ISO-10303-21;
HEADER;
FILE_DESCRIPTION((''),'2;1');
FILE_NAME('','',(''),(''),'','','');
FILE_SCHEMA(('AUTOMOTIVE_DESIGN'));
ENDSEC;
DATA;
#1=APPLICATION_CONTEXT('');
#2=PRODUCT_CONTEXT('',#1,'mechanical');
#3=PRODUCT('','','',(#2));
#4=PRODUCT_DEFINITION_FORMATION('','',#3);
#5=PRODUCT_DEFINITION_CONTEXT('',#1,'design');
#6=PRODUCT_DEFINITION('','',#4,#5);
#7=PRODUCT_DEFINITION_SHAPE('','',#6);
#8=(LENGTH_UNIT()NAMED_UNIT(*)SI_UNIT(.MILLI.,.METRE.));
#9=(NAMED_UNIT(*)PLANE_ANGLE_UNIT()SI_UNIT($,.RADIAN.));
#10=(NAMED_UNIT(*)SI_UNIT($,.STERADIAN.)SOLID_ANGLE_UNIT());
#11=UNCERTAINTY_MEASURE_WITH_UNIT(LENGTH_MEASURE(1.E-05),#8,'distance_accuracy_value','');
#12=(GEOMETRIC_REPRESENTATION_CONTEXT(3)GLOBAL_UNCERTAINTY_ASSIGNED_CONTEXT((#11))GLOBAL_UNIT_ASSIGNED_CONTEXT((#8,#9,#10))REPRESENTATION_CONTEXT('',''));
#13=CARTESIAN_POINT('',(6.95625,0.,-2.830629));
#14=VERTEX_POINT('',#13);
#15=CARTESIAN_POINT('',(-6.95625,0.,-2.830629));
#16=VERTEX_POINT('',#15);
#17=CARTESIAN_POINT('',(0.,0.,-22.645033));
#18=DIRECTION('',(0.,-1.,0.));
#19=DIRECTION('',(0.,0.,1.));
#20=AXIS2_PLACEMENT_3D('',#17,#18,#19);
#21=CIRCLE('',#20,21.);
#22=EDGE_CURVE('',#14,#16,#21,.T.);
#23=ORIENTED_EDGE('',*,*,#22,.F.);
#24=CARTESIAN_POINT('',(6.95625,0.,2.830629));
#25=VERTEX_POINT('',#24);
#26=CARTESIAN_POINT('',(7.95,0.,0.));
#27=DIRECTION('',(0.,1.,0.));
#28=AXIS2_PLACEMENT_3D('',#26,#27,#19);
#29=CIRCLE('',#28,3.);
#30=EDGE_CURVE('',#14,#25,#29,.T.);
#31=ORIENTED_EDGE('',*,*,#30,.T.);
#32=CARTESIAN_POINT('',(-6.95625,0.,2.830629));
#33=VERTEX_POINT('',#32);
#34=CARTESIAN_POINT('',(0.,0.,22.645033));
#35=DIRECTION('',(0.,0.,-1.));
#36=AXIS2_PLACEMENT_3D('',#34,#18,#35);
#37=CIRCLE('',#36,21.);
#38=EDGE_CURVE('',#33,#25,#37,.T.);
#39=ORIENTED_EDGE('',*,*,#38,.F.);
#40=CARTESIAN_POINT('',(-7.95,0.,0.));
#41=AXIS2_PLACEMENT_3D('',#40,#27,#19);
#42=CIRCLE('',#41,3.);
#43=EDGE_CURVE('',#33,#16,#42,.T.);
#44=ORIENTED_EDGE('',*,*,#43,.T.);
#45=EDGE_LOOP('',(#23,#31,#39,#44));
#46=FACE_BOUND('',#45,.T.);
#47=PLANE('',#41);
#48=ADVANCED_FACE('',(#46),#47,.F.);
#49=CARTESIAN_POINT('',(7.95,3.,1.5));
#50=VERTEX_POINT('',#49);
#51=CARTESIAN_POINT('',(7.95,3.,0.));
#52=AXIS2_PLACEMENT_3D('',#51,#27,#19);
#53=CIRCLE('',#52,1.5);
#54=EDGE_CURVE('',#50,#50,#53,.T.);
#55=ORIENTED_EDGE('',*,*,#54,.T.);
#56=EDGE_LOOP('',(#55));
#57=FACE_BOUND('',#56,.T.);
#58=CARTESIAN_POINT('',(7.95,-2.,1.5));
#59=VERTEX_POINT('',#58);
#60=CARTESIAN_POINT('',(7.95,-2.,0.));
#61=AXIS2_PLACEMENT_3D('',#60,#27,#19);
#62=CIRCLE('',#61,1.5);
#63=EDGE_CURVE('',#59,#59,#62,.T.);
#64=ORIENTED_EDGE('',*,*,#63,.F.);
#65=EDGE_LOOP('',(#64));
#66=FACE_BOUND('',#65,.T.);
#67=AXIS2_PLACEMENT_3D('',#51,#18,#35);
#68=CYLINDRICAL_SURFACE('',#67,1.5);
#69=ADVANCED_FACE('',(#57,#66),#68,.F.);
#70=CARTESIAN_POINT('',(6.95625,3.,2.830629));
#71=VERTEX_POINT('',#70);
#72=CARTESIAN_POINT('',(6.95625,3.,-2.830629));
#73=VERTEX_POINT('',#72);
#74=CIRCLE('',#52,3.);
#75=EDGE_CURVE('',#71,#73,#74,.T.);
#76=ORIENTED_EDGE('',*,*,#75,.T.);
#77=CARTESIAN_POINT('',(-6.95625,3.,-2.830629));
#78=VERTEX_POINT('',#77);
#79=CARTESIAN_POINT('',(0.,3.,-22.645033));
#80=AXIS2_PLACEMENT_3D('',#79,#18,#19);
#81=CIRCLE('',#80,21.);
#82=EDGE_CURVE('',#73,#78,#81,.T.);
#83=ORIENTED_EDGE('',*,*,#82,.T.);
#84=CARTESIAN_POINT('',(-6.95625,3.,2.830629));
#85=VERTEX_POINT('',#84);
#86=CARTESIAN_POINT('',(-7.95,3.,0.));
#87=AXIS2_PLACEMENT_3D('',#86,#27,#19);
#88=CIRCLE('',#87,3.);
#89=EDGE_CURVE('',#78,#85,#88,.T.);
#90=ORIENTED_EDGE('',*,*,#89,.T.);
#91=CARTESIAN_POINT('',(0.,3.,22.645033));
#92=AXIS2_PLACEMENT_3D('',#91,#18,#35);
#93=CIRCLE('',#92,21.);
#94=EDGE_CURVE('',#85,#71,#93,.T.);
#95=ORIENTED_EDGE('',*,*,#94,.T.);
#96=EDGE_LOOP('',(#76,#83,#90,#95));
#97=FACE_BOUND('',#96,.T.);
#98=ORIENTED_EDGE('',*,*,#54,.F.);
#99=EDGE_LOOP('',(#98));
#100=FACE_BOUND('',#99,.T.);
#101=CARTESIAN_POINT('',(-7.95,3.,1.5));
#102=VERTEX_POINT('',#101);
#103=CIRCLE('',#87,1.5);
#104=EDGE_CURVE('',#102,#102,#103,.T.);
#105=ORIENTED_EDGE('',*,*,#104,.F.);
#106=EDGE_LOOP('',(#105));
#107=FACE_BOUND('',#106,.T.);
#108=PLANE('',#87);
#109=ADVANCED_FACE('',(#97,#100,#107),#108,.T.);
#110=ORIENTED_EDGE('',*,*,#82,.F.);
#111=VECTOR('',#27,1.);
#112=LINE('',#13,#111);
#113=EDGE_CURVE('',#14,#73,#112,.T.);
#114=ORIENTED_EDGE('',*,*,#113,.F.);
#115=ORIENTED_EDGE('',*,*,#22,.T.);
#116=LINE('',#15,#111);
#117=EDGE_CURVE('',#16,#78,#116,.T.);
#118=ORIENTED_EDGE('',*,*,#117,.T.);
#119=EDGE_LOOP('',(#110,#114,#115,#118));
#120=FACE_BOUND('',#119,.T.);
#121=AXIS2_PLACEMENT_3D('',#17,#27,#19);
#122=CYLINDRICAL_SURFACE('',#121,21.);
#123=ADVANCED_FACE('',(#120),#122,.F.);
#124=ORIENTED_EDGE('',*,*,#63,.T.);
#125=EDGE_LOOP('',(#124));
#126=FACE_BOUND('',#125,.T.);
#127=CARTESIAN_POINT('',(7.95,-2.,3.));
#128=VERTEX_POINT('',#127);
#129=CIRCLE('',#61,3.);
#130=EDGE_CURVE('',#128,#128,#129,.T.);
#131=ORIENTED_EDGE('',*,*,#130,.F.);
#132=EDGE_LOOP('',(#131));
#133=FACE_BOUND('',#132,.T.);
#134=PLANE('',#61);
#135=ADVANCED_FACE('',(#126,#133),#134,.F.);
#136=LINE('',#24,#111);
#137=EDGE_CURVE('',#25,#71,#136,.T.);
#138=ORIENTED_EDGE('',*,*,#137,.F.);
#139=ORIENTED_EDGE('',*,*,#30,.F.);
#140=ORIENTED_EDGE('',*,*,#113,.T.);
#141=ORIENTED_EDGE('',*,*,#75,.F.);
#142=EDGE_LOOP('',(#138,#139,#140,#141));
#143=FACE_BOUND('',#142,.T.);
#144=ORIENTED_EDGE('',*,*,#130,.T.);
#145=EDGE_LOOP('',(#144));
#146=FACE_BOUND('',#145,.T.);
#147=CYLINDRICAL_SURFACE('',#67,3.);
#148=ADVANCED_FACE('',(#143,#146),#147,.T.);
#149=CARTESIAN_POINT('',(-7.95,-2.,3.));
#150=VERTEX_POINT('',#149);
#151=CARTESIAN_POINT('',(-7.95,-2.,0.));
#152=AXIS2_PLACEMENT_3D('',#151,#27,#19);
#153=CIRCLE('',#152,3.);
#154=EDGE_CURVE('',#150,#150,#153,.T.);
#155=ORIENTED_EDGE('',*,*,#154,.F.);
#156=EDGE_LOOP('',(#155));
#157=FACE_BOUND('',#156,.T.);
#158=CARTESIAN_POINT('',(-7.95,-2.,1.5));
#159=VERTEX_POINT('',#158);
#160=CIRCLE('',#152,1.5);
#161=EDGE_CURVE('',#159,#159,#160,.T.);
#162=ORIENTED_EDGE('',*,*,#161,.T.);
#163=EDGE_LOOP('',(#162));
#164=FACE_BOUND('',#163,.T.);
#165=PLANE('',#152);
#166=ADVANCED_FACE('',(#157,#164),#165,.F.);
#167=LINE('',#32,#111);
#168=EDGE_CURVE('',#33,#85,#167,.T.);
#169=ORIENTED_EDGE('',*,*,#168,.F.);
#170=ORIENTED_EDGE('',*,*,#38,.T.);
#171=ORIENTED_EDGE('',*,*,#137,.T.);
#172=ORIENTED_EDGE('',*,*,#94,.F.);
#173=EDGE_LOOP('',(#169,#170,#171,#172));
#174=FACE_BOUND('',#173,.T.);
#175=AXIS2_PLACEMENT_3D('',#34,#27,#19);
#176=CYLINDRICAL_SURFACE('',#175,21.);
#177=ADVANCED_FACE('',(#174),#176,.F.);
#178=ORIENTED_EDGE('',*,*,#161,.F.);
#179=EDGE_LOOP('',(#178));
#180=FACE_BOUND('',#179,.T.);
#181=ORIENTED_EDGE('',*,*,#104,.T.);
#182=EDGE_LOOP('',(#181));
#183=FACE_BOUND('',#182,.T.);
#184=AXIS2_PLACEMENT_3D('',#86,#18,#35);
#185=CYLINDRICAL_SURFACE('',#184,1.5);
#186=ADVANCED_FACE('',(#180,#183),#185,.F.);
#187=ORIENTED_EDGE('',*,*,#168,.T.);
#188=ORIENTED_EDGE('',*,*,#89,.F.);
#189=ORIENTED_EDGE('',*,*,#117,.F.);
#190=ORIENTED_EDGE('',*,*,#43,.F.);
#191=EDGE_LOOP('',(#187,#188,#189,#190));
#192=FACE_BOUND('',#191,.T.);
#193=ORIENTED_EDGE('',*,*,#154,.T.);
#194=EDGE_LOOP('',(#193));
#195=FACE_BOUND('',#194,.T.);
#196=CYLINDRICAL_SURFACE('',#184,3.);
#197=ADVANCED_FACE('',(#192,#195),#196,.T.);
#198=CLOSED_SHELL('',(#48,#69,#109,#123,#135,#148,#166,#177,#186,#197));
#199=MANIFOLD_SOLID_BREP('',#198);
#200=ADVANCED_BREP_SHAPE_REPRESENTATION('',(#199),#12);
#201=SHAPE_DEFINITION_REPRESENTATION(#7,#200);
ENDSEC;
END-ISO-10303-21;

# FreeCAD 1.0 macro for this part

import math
import FreeCAD as App
import Part
import Sketcher

V = App.Vector
Q = App.Units.Quantity

doc = App.newDocument("Part")
params = doc.addObject("Spreadsheet::Sheet", "Params")
for row, (alias, value) in enumerate([
    ("sketch1_diameter", "3 mm"),
    ("sketch1_radius", "3 mm"),
    ("sketch1_width", "15.9 mm"),
    ("pad1_length", "3 mm"),
    ("sketch2_radius", "3 mm"),
    ("sketch2_radius2", "21 mm"),
    ("sketch2_width", "28.48 mm"),
    ("sketch2_height", "12.58 mm"),
    ("sketch3_diameter", "3 mm"),
    ("sketch3_radius", "3 mm"),
    ("pad2_length", "2 mm"),
], start=1):
    params.set(f"A{row}", alias)
    params.set(f"B{row}", "=" + value)
    params.setAlias(f"B{row}", alias)

body = doc.addObject("PartDesign::Body", "Body")

# Sketch on XZ plane
sketch1 = doc.addObject("Sketcher::SketchObject", "Sketch")
body.addObject(sketch1)
sketch1.AttachmentSupport = (doc.XZ_Plane, [""])
sketch1.MapMode = "FlatFace"
sketch1.addGeometry([
    Part.LineSegment(V(8, -3, 0), V(-8, -3, 0)),  # 0
    Part.ArcOfCircle(Part.Circle(V(-8, 0, 0), V(0, 0, 1), 3), math.radians(90), math.radians(270)),  # 1
    Part.LineSegment(V(-8, 3, 0), V(8, 3, 0)),  # 2
    Part.ArcOfCircle(Part.Circle(V(8, 0, 0), V(0, 0, 1), 3), math.radians(-90), math.radians(90)),  # 3
    Part.Circle(V(8, 0, 0), V(0, 0, 1), 1.5),  # 4
    Part.Circle(V(-8, 0, 0), V(0, 0, 1), 1.5),  # 5
], False)
sketch1.addConstraint([
    Sketcher.Constraint("Tangent", 0, 2, 1, 2),
    Sketcher.Constraint("Tangent", 1, 1, 2, 1),
    Sketcher.Constraint("Tangent", 2, 2, 3, 2),
    Sketcher.Constraint("Tangent", 3, 1, 0, 1),
    Sketcher.Constraint("Horizontal", 0),
    Sketcher.Constraint("Horizontal", 2),
    Sketcher.Constraint("Coincident", 4, 3, 3, 3),
    Sketcher.Constraint("Coincident", 5, 3, 1, 3),
    Sketcher.Constraint("Equal", 4, 5),
    Sketcher.Constraint("Symmetric", 1, 3, 3, 3, -1, 1),
    Sketcher.Constraint("Diameter", 4, Q("3 mm")),
    Sketcher.Constraint("Radius", 1, Q("3 mm")),
    Sketcher.Constraint("DistanceX", 0, 2, 0, 1, Q("15.9 mm")),
])
sketch1.setExpression("Constraints[10]", "Params.sketch1_diameter")
sketch1.setExpression("Constraints[11]", "Params.sketch1_radius")
sketch1.setExpression("Constraints[12]", "Params.sketch1_width")
pad1 = doc.addObject("PartDesign::Pad", "Pad")
body.addObject(pad1)
pad1.Profile = sketch1
pad1.setExpression("Length", "Params.pad1_length")
pad1.Reversed = True

# Sketch on XZ plane
sketch2 = doc.addObject("Sketcher::SketchObject", "Sketch001")
body.addObject(sketch2)
sketch2.AttachmentSupport = (doc.XZ_Plane, [""])
sketch2.MapMode = "FlatFace"
sketch2.AttachmentOffset = App.Placement(V(0, 0, -3), App.Rotation())
sketch2.addGeometry([
    Part.LineSegment(V(-14.2, -6.3, 0), V(-14.2, 6.3, 0)),  # 0
    Part.LineSegment(V(-14.2, 6.3, 0), V(14.2, 6.3, 0)),  # 1
    Part.LineSegment(V(14.2, 6.3, 0), V(14.2, -6.3, 0)),  # 2
    Part.LineSegment(V(14.2, -6.3, 0), V(-14.2, -6.3, 0)),  # 3
    Part.ArcOfCircle(Part.Circle(V(-8, 0, 0), V(0, 0, 1), 3), math.radians(71), math.radians(289)),  # 4
    Part.ArcOfCircle(Part.Circle(V(0, -22.6, 0), V(0, 0, 1), 21), math.radians(71), math.radians(109)),  # 5
    Part.ArcOfCircle(Part.Circle(V(8, 0, 0), V(0, 0, 1), 3), math.radians(-109), math.radians(109)),  # 6
    Part.ArcOfCircle(Part.Circle(V(0, 22.6, 0), V(0, 0, 1), 21), math.radians(-109), math.radians(-71)),  # 7
], False)
sketch2.addConstraint([
    Sketcher.Constraint("Coincident", 0, 2, 1, 1),
    Sketcher.Constraint("Coincident", 1, 2, 2, 1),
    Sketcher.Constraint("Coincident", 2, 2, 3, 1),
    Sketcher.Constraint("Coincident", 3, 2, 0, 1),
    Sketcher.Constraint("Tangent", 4, 2, 5, 2),
    Sketcher.Constraint("Tangent", 5, 1, 6, 1),
    Sketcher.Constraint("Tangent", 6, 2, 7, 2),
    Sketcher.Constraint("Tangent", 7, 1, 4, 1),
    Sketcher.Constraint("Vertical", 0),
    Sketcher.Constraint("Horizontal", 1),
    Sketcher.Constraint("Vertical", 2),
    Sketcher.Constraint("Horizontal", 3),
    Sketcher.Constraint("Equal", 4, 6),
    Sketcher.Constraint("Equal", 5, 7),
    Sketcher.Constraint("Symmetric", 4, 3, 6, 3, -1, 1),
    Sketcher.Constraint("Symmetric", 0, 2, 2, 2, -1, 1),
    Sketcher.Constraint("PointOnObject", 4, 3, -1),
    Sketcher.Constraint("Radius", 4, Q("3 mm")),
    Sketcher.Constraint("Radius", 5, Q("21 mm")),
    Sketcher.Constraint("DistanceX", 1, 1, 1, 2, Q("28.48 mm")),
    Sketcher.Constraint("DistanceY", 0, 1, 0, 2, Q("12.58 mm")),
    Sketcher.Constraint("DistanceX", 4, 3, 6, 3, Q("15.9 mm")),
])
sketch2.setExpression("Constraints[17]", "Params.sketch2_radius")
sketch2.setExpression("Constraints[18]", "Params.sketch2_radius2")
sketch2.setExpression("Constraints[19]", "Params.sketch2_width")
sketch2.setExpression("Constraints[20]", "Params.sketch2_height")
pocket1 = doc.addObject("PartDesign::Pocket", "Pocket")
body.addObject(pocket1)
pocket1.Profile = sketch2
pocket1.Type = "ThroughAll"
pocket1.Reversed = True

# Sketch on XZ plane
sketch3 = doc.addObject("Sketcher::SketchObject", "Sketch002")
body.addObject(sketch3)
sketch3.AttachmentSupport = (doc.XZ_Plane, [""])
sketch3.MapMode = "FlatFace"
sketch3.addGeometry([
    Part.ArcOfCircle(Part.Circle(V(-7.9, 0, 0), V(0, 0, 1), 3), math.radians(0), math.radians(71)),  # 0
    Part.ArcOfCircle(Part.Circle(V(-7.9, 0, 0), V(0, 0, 1), 3), math.radians(-71), math.radians(0)),  # 1
    Part.ArcOfCircle(Part.Circle(V(-8, 0, 0), V(0, 0, 1), 3), math.radians(71), math.radians(289)),  # 2
    Part.Circle(V(-8, 0, 0), V(0, 0, 1), 1.5),  # 3
    Part.ArcOfCircle(Part.Circle(V(8, 0, 0), V(0, 0, 1), 3), math.radians(0), math.radians(109)),  # 4
    Part.ArcOfCircle(Part.Circle(V(8, 0, 0), V(0, 0, 1), 3), math.radians(-109), math.radians(0)),  # 5
    Part.ArcOfCircle(Part.Circle(V(8, 0, 0), V(0, 0, 1), 3), math.radians(109), math.radians(251)),  # 6
    Part.Circle(V(8, 0, 0), V(0, 0, 1), 1.5),  # 7
], False)
sketch3.addConstraint([
    Sketcher.Constraint("Tangent", 0, 1, 1, 2),
    Sketcher.Constraint("Tangent", 1, 1, 2, 2),
    Sketcher.Constraint("Tangent", 2, 1, 0, 2),
    Sketcher.Constraint("Tangent", 4, 1, 5, 2),
    Sketcher.Constraint("Tangent", 5, 1, 6, 2),
    Sketcher.Constraint("Tangent", 6, 1, 4, 2),
    Sketcher.Constraint("Coincident", 3, 3, 0, 3),
    Sketcher.Constraint("Coincident", 7, 3, 4, 3),
    Sketcher.Constraint("Equal", 2, 4),
    Sketcher.Constraint("Equal", 3, 7),
    Sketcher.Constraint("Symmetric", 0, 3, 4, 3, -1, 1),
    Sketcher.Constraint("Symmetric", 1, 1, 5, 1, -2),
    Sketcher.Constraint("PointOnObject", 0, 1, -1),
    Sketcher.Constraint("PointOnObject", 4, 1, -1),
    Sketcher.Constraint("Horizontal", 2, 1, 6, 1),
    Sketcher.Constraint("Vertical", 1, 1, 2, 1),
    Sketcher.Constraint("Diameter", 3, Q("3 mm")),
    Sketcher.Constraint("Radius", 0, Q("3 mm")),
    Sketcher.Constraint("DistanceX", 0, 3, 4, 3, Q("15.9 mm")),
    Sketcher.Constraint("DistanceX", 1, 1, -1, 1, Q("6.95625 mm")),
])
sketch3.setExpression("Constraints[16]", "Params.sketch3_diameter")
sketch3.setExpression("Constraints[17]", "Params.sketch3_radius")
pad2 = doc.addObject("PartDesign::Pad", "Pad001")
body.addObject(pad2)
pad2.Profile = sketch3
pad2.setExpression("Length", "Params.pad2_length")

doc.recompute()
